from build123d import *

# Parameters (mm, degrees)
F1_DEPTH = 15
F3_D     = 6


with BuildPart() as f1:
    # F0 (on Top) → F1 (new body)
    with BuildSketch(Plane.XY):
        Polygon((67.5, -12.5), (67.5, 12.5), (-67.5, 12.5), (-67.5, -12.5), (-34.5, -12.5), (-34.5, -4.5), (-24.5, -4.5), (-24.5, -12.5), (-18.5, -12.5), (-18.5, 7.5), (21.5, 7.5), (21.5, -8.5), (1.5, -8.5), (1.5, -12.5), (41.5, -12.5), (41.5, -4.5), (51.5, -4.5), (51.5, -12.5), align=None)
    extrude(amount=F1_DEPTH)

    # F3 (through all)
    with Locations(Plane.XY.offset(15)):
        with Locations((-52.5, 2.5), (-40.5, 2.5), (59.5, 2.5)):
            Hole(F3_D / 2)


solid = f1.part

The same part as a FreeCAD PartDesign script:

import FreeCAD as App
import Part
import Sketcher
from FreeCAD import Vector
Q = App.Units.Quantity


def add_polygon(sketch, points):
    """Adds a closed chain of lines whose ends are joined by coincident constraints."""
    first, n = sketch.GeometryCount, len(points)
    for a, b in zip(points, points[1:] + points[:1]):
        sketch.addGeometry(Part.LineSegment(App.Vector(*a, 0), App.Vector(*b, 0)), False)
    for i in range(n):
        sketch.addConstraint(Sketcher.Constraint("Coincident", first + i, 2, first + (i + 1) % n, 1))

doc = App.newDocument("Part")
body = doc.addObject("PartDesign::Body", "Body")

sketch1 = doc.addObject("Sketcher::SketchObject", "Sketch")
body.addObject(sketch1)
sketch1.AttachmentSupport = (doc.XY_Plane, [""])
sketch1.MapMode = "FlatFace"
add_polygon(sketch1, [(67.5, -12.5), (67.5, 12.5), (-67.5, 12.5), (-67.5, -12.5), (-34.5, -12.5), (-34.5, -4.5), (-24.5, -4.5), (-24.5, -12.5), (-18.5, -12.5), (-18.5, 7.5), (21.5, 7.5), (21.5, -8.5), (1.5, -8.5), (1.5, -12.5), (41.5, -12.5), (41.5, -4.5), (51.5, -4.5), (51.5, -12.5)])
sketch1.addConstraint(Sketcher.Constraint("Vertical", 0))
sketch1.addConstraint(Sketcher.Constraint("Horizontal", 1))
sketch1.addConstraint(Sketcher.Constraint("Vertical", 2))
sketch1.addConstraint(Sketcher.Constraint("Horizontal", 3))
sketch1.addConstraint(Sketcher.Constraint("Vertical", 4))
sketch1.addConstraint(Sketcher.Constraint("Horizontal", 5))
sketch1.addConstraint(Sketcher.Constraint("Vertical", 6))
sketch1.addConstraint(Sketcher.Constraint("Horizontal", 7))
sketch1.addConstraint(Sketcher.Constraint("Vertical", 8))
sketch1.addConstraint(Sketcher.Constraint("Horizontal", 9))
sketch1.addConstraint(Sketcher.Constraint("Vertical", 10))
sketch1.addConstraint(Sketcher.Constraint("Horizontal", 11))
sketch1.addConstraint(Sketcher.Constraint("Vertical", 12))
sketch1.addConstraint(Sketcher.Constraint("Horizontal", 13))
sketch1.addConstraint(Sketcher.Constraint("Vertical", 14))
sketch1.addConstraint(Sketcher.Constraint("Horizontal", 15))
sketch1.addConstraint(Sketcher.Constraint("Vertical", 16))
sketch1.addConstraint(Sketcher.Constraint("Horizontal", 17))
sketch1.addConstraint(Sketcher.Constraint("Symmetric", 0, 2, 2, 2, -1, 1))
sketch1.addConstraint(Sketcher.Constraint("Horizontal", 3, 2, 6, 2))
sketch1.addConstraint(Sketcher.Constraint("Horizontal", 7, 2, 12, 2))
sketch1.addConstraint(Sketcher.Constraint("Horizontal", 5, 2, 14, 2))
sketch1.addConstraint(Sketcher.Constraint("Horizontal", 13, 2, 16, 2))
sketch1.addConstraint(Sketcher.Constraint("Equal", 9, 13))
sketch1.addConstraint(Sketcher.Constraint("Equal", 5, 15))
sketch1.addConstraint(Sketcher.Constraint("Equal", 11, 8))
sketch1.addConstraint(Sketcher.Constraint("Equal", 17, 10))
sketch1.addConstraint(Sketcher.Constraint("DistanceX", 1, 2, 1, 1, Q("135 mm")))
sketch1.addConstraint(Sketcher.Constraint("DistanceX", 3, 1, 3, 2, Q("33 mm")))
sketch1.addConstraint(Sketcher.Constraint("DistanceX", 5, 1, 5, 2, Q("10 mm")))
sketch1.addConstraint(Sketcher.Constraint("DistanceX", 7, 1, 7, 2, Q("6 mm")))
sketch1.addConstraint(Sketcher.Constraint("DistanceX", 9, 1, 9, 2, Q("40 mm")))
sketch1.addConstraint(Sketcher.Constraint("DistanceX", 11, 2, 11, 1, Q("20 mm")))
sketch1.addConstraint(Sketcher.Constraint("DistanceY", 0, 1, 0, 2, Q("25 mm")))
sketch1.addConstraint(Sketcher.Constraint("DistanceY", 4, 1, 4, 2, Q("8 mm")))
pad1 = doc.addObject("PartDesign::Pad", "Pad")
body.addObject(pad1)
pad1.Profile = sketch1
pad1.Length = 15

sketch2 = doc.addObject("Sketcher::SketchObject", "Sketch001")
body.addObject(sketch2)
sketch2.AttachmentSupport = (doc.XY_Plane, [""])
sketch2.MapMode = "FlatFace"
sketch2.AttachmentOffset = App.Placement(Vector(0, 0, 15), App.Rotation())
sketch2.addGeometry(Part.Circle(Vector(-52.5, 2.5, 0), Vector(0, 0, 1), 3), False)
sketch2.addGeometry(Part.Circle(Vector(-40.5, 2.5, 0), Vector(0, 0, 1), 3), False)
sketch2.addGeometry(Part.Circle(Vector(59.5, 2.5, 0), Vector(0, 0, 1), 3), False)
sketch2.addConstraint(Sketcher.Constraint("Equal", 0, 1))
sketch2.addConstraint(Sketcher.Constraint("Equal", 1, 2))
sketch2.addConstraint(Sketcher.Constraint("Horizontal", 0, 3, 1, 3))
sketch2.addConstraint(Sketcher.Constraint("Horizontal", 1, 3, 2, 3))
sketch2.addConstraint(Sketcher.Constraint("Diameter", 0, Q("6 mm")))
sketch2.addConstraint(Sketcher.Constraint("DistanceX", 0, 3, 1, 3, Q("12 mm")))
sketch2.addConstraint(Sketcher.Constraint("DistanceX", 1, 3, 2, 3, Q("100 mm")))
sketch2.addConstraint(Sketcher.Constraint("DistanceX", 0, 3, -1, 1, Q("52.5 mm")))
sketch2.addConstraint(Sketcher.Constraint("DistanceY", -1, 1, 0, 3, Q("2.5 mm")))
doc.recompute()
hole = doc.addObject("PartDesign::Hole", "Hole")
body.addObject(hole)
hole.Profile = sketch2
hole.ThreadType = "None"
hole.Diameter = 6
hole.DepthType = "ThroughAll"

doc.recompute()
